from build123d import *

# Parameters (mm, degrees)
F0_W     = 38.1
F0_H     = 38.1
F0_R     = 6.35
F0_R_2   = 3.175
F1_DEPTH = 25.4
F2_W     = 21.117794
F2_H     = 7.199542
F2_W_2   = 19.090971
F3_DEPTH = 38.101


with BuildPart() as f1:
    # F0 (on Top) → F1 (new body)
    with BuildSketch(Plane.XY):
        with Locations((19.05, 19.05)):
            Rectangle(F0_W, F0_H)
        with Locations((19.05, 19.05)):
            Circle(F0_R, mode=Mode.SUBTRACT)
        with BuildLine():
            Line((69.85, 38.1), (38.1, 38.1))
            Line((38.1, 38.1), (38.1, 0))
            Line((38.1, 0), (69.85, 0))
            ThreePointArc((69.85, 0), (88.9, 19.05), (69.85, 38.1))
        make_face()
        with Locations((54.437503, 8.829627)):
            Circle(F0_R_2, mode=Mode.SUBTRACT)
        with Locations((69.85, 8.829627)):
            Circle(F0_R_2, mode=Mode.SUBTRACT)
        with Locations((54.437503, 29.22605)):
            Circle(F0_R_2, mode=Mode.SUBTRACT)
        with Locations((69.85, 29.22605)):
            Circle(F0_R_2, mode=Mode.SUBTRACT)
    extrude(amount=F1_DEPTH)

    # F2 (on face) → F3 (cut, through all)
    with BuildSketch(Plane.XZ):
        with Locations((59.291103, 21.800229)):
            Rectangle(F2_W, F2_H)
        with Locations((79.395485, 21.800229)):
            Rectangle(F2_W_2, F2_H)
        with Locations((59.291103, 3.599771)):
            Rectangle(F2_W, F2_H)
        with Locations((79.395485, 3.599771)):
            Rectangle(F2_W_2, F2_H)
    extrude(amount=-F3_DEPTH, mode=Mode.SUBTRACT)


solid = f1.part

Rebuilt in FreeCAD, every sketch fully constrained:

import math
import FreeCAD as App
import Part
import Sketcher

V = App.Vector
Q = App.Units.Quantity


def add_polygon(sketch, points):
    """Adds a closed chain of lines whose ends are joined by coincident constraints."""
    first, n = sketch.GeometryCount, len(points)
    for a, b in zip(points, points[1:] + points[:1]):
        sketch.addGeometry(Part.LineSegment(App.Vector(*a, 0), App.Vector(*b, 0)), False)
    for i in range(n):
        sketch.addConstraint(Sketcher.Constraint("Coincident", first + i, 2, first + (i + 1) % n, 1))

doc = App.newDocument("Part")
body = doc.addObject("PartDesign::Body", "Body")

sketch1 = body.newObject("Sketcher::SketchObject", "Sketch")
sketch1.AttachmentSupport = (doc.getObject("XY_Plane"), [""])
sketch1.MapMode = "FlatFace"
sketch1.addGeometry([
    Part.LineSegment(V(0, 38.1, 0), V(0, 0, 0)),
    Part.LineSegment(V(0, 0, 0), V(69.85, 0, 0)),
    Part.ArcOfCircle(Part.Circle(V(69.85, 19.05, 0), V(0, 0, 1), 19.05), math.radians(-90), math.radians(90)),
    Part.LineSegment(V(69.85, 38.1, 0), V(0, 38.1, 0)),
    Part.Circle(V(54.437503, 8.829627, 0), V(0, 0, 1), 3.175),
    Part.Circle(V(69.85, 8.829627, 0), V(0, 0, 1), 3.175),
    Part.Circle(V(19.05, 19.05, 0), V(0, 0, 1), 6.35),
    Part.Circle(V(54.437503, 29.22605, 0), V(0, 0, 1), 3.175),
    Part.Circle(V(69.85, 29.22605, 0), V(0, 0, 1), 3.175),
], False)
sketch1.addConstraint([
    Sketcher.Constraint("Coincident", 0, 2, 1, 1),
    Sketcher.Constraint("Tangent", 1, 2, 2, 1),
    Sketcher.Constraint("Tangent", 2, 2, 3, 1),
    Sketcher.Constraint("Coincident", 3, 2, 0, 1),
    Sketcher.Constraint("Vertical", 0),
    Sketcher.Constraint("Horizontal", 1),
    Sketcher.Constraint("Horizontal", 3),
    Sketcher.Constraint("Coincident", 0, 2, -1, 1),
    Sketcher.Constraint("Equal", 4, 5),
    Sketcher.Constraint("Equal", 5, 7),
    Sketcher.Constraint("Equal", 7, 8),
    Sketcher.Constraint("Horizontal", 4, 3, 5, 3),
    Sketcher.Constraint("Horizontal", 2, 3, 6, 3),
    Sketcher.Constraint("Horizontal", 7, 3, 8, 3),
    Sketcher.Constraint("Vertical", 2, 3, 5, 3),
    Sketcher.Constraint("Vertical", 4, 3, 7, 3),
    Sketcher.Constraint("Vertical", 5, 3, 8, 3),
    Sketcher.Constraint("Diameter", 6, Q("0.5 in")),
    Sketcher.Constraint("Diameter", 4, Q("0.25 in")),
    Sketcher.Constraint("Radius", 2, Q("0.75 in")),
    Sketcher.Constraint("DistanceX", 6, 3, 2, 3, Q("2 in")),
    Sketcher.Constraint("DistanceX", 1, 1, 1, 2, Q("2.75 in")),
    Sketcher.Constraint("DistanceY", -1, 1, 7, 3, 29.22605),
    Sketcher.Constraint("DistanceX", -1, 1, 4, 3, 54.437503),
    Sketcher.Constraint("DistanceY", -1, 1, 4, 3, 8.829627),
])
pad1 = body.newObject("PartDesign::Pad", "Pad")
pad1.Profile = sketch1
pad1.Length = Q("1 in")

sketch2 = body.newObject("Sketcher::SketchObject", "Sketch001")
sketch2.AttachmentSupport = (doc.getObject("XZ_Plane"), [""])
sketch2.MapMode = "FlatFace"
add_polygon(sketch2, [(48.732206, 25.4), (48.732206, 18.200458), (88.940971, 18.200458), (88.940971, 25.4)])
add_polygon(sketch2, [(48.732206, 7.199542), (48.732206, 0), (88.940971, 0), (88.940971, 7.199542)])
sketch2.addConstraint([
    Sketcher.Constraint("Vertical", 0),
    Sketcher.Constraint("Horizontal", 1),
    Sketcher.Constraint("Vertical", 2),
    Sketcher.Constraint("Horizontal", 3),
    Sketcher.Constraint("Vertical", 4),
    Sketcher.Constraint("Horizontal", 5),
    Sketcher.Constraint("Vertical", 6),
    Sketcher.Constraint("Horizontal", 7),
    Sketcher.Constraint("PointOnObject", 4, 2, -1),
    Sketcher.Constraint("Vertical", 3, 2, 4, 2),
    Sketcher.Constraint("Vertical", 2, 2, 5, 2),
    Sketcher.Constraint("Equal", 2, 4),
    Sketcher.Constraint("DistanceY", -1, 1, 2, 2, Q("1 in")),
    Sketcher.Constraint("DistanceY", 0, 2, 0, 1, 7.199542),
    Sketcher.Constraint("DistanceX", 1, 1, 1, 2, 40.208765),
    Sketcher.Constraint("DistanceX", -1, 1, 1, 2, 88.940971),
])
pocket1 = body.newObject("PartDesign::Pocket", "Pocket")
pocket1.Profile = sketch2
pocket1.Type = "ThroughAll"

doc.recompute()
